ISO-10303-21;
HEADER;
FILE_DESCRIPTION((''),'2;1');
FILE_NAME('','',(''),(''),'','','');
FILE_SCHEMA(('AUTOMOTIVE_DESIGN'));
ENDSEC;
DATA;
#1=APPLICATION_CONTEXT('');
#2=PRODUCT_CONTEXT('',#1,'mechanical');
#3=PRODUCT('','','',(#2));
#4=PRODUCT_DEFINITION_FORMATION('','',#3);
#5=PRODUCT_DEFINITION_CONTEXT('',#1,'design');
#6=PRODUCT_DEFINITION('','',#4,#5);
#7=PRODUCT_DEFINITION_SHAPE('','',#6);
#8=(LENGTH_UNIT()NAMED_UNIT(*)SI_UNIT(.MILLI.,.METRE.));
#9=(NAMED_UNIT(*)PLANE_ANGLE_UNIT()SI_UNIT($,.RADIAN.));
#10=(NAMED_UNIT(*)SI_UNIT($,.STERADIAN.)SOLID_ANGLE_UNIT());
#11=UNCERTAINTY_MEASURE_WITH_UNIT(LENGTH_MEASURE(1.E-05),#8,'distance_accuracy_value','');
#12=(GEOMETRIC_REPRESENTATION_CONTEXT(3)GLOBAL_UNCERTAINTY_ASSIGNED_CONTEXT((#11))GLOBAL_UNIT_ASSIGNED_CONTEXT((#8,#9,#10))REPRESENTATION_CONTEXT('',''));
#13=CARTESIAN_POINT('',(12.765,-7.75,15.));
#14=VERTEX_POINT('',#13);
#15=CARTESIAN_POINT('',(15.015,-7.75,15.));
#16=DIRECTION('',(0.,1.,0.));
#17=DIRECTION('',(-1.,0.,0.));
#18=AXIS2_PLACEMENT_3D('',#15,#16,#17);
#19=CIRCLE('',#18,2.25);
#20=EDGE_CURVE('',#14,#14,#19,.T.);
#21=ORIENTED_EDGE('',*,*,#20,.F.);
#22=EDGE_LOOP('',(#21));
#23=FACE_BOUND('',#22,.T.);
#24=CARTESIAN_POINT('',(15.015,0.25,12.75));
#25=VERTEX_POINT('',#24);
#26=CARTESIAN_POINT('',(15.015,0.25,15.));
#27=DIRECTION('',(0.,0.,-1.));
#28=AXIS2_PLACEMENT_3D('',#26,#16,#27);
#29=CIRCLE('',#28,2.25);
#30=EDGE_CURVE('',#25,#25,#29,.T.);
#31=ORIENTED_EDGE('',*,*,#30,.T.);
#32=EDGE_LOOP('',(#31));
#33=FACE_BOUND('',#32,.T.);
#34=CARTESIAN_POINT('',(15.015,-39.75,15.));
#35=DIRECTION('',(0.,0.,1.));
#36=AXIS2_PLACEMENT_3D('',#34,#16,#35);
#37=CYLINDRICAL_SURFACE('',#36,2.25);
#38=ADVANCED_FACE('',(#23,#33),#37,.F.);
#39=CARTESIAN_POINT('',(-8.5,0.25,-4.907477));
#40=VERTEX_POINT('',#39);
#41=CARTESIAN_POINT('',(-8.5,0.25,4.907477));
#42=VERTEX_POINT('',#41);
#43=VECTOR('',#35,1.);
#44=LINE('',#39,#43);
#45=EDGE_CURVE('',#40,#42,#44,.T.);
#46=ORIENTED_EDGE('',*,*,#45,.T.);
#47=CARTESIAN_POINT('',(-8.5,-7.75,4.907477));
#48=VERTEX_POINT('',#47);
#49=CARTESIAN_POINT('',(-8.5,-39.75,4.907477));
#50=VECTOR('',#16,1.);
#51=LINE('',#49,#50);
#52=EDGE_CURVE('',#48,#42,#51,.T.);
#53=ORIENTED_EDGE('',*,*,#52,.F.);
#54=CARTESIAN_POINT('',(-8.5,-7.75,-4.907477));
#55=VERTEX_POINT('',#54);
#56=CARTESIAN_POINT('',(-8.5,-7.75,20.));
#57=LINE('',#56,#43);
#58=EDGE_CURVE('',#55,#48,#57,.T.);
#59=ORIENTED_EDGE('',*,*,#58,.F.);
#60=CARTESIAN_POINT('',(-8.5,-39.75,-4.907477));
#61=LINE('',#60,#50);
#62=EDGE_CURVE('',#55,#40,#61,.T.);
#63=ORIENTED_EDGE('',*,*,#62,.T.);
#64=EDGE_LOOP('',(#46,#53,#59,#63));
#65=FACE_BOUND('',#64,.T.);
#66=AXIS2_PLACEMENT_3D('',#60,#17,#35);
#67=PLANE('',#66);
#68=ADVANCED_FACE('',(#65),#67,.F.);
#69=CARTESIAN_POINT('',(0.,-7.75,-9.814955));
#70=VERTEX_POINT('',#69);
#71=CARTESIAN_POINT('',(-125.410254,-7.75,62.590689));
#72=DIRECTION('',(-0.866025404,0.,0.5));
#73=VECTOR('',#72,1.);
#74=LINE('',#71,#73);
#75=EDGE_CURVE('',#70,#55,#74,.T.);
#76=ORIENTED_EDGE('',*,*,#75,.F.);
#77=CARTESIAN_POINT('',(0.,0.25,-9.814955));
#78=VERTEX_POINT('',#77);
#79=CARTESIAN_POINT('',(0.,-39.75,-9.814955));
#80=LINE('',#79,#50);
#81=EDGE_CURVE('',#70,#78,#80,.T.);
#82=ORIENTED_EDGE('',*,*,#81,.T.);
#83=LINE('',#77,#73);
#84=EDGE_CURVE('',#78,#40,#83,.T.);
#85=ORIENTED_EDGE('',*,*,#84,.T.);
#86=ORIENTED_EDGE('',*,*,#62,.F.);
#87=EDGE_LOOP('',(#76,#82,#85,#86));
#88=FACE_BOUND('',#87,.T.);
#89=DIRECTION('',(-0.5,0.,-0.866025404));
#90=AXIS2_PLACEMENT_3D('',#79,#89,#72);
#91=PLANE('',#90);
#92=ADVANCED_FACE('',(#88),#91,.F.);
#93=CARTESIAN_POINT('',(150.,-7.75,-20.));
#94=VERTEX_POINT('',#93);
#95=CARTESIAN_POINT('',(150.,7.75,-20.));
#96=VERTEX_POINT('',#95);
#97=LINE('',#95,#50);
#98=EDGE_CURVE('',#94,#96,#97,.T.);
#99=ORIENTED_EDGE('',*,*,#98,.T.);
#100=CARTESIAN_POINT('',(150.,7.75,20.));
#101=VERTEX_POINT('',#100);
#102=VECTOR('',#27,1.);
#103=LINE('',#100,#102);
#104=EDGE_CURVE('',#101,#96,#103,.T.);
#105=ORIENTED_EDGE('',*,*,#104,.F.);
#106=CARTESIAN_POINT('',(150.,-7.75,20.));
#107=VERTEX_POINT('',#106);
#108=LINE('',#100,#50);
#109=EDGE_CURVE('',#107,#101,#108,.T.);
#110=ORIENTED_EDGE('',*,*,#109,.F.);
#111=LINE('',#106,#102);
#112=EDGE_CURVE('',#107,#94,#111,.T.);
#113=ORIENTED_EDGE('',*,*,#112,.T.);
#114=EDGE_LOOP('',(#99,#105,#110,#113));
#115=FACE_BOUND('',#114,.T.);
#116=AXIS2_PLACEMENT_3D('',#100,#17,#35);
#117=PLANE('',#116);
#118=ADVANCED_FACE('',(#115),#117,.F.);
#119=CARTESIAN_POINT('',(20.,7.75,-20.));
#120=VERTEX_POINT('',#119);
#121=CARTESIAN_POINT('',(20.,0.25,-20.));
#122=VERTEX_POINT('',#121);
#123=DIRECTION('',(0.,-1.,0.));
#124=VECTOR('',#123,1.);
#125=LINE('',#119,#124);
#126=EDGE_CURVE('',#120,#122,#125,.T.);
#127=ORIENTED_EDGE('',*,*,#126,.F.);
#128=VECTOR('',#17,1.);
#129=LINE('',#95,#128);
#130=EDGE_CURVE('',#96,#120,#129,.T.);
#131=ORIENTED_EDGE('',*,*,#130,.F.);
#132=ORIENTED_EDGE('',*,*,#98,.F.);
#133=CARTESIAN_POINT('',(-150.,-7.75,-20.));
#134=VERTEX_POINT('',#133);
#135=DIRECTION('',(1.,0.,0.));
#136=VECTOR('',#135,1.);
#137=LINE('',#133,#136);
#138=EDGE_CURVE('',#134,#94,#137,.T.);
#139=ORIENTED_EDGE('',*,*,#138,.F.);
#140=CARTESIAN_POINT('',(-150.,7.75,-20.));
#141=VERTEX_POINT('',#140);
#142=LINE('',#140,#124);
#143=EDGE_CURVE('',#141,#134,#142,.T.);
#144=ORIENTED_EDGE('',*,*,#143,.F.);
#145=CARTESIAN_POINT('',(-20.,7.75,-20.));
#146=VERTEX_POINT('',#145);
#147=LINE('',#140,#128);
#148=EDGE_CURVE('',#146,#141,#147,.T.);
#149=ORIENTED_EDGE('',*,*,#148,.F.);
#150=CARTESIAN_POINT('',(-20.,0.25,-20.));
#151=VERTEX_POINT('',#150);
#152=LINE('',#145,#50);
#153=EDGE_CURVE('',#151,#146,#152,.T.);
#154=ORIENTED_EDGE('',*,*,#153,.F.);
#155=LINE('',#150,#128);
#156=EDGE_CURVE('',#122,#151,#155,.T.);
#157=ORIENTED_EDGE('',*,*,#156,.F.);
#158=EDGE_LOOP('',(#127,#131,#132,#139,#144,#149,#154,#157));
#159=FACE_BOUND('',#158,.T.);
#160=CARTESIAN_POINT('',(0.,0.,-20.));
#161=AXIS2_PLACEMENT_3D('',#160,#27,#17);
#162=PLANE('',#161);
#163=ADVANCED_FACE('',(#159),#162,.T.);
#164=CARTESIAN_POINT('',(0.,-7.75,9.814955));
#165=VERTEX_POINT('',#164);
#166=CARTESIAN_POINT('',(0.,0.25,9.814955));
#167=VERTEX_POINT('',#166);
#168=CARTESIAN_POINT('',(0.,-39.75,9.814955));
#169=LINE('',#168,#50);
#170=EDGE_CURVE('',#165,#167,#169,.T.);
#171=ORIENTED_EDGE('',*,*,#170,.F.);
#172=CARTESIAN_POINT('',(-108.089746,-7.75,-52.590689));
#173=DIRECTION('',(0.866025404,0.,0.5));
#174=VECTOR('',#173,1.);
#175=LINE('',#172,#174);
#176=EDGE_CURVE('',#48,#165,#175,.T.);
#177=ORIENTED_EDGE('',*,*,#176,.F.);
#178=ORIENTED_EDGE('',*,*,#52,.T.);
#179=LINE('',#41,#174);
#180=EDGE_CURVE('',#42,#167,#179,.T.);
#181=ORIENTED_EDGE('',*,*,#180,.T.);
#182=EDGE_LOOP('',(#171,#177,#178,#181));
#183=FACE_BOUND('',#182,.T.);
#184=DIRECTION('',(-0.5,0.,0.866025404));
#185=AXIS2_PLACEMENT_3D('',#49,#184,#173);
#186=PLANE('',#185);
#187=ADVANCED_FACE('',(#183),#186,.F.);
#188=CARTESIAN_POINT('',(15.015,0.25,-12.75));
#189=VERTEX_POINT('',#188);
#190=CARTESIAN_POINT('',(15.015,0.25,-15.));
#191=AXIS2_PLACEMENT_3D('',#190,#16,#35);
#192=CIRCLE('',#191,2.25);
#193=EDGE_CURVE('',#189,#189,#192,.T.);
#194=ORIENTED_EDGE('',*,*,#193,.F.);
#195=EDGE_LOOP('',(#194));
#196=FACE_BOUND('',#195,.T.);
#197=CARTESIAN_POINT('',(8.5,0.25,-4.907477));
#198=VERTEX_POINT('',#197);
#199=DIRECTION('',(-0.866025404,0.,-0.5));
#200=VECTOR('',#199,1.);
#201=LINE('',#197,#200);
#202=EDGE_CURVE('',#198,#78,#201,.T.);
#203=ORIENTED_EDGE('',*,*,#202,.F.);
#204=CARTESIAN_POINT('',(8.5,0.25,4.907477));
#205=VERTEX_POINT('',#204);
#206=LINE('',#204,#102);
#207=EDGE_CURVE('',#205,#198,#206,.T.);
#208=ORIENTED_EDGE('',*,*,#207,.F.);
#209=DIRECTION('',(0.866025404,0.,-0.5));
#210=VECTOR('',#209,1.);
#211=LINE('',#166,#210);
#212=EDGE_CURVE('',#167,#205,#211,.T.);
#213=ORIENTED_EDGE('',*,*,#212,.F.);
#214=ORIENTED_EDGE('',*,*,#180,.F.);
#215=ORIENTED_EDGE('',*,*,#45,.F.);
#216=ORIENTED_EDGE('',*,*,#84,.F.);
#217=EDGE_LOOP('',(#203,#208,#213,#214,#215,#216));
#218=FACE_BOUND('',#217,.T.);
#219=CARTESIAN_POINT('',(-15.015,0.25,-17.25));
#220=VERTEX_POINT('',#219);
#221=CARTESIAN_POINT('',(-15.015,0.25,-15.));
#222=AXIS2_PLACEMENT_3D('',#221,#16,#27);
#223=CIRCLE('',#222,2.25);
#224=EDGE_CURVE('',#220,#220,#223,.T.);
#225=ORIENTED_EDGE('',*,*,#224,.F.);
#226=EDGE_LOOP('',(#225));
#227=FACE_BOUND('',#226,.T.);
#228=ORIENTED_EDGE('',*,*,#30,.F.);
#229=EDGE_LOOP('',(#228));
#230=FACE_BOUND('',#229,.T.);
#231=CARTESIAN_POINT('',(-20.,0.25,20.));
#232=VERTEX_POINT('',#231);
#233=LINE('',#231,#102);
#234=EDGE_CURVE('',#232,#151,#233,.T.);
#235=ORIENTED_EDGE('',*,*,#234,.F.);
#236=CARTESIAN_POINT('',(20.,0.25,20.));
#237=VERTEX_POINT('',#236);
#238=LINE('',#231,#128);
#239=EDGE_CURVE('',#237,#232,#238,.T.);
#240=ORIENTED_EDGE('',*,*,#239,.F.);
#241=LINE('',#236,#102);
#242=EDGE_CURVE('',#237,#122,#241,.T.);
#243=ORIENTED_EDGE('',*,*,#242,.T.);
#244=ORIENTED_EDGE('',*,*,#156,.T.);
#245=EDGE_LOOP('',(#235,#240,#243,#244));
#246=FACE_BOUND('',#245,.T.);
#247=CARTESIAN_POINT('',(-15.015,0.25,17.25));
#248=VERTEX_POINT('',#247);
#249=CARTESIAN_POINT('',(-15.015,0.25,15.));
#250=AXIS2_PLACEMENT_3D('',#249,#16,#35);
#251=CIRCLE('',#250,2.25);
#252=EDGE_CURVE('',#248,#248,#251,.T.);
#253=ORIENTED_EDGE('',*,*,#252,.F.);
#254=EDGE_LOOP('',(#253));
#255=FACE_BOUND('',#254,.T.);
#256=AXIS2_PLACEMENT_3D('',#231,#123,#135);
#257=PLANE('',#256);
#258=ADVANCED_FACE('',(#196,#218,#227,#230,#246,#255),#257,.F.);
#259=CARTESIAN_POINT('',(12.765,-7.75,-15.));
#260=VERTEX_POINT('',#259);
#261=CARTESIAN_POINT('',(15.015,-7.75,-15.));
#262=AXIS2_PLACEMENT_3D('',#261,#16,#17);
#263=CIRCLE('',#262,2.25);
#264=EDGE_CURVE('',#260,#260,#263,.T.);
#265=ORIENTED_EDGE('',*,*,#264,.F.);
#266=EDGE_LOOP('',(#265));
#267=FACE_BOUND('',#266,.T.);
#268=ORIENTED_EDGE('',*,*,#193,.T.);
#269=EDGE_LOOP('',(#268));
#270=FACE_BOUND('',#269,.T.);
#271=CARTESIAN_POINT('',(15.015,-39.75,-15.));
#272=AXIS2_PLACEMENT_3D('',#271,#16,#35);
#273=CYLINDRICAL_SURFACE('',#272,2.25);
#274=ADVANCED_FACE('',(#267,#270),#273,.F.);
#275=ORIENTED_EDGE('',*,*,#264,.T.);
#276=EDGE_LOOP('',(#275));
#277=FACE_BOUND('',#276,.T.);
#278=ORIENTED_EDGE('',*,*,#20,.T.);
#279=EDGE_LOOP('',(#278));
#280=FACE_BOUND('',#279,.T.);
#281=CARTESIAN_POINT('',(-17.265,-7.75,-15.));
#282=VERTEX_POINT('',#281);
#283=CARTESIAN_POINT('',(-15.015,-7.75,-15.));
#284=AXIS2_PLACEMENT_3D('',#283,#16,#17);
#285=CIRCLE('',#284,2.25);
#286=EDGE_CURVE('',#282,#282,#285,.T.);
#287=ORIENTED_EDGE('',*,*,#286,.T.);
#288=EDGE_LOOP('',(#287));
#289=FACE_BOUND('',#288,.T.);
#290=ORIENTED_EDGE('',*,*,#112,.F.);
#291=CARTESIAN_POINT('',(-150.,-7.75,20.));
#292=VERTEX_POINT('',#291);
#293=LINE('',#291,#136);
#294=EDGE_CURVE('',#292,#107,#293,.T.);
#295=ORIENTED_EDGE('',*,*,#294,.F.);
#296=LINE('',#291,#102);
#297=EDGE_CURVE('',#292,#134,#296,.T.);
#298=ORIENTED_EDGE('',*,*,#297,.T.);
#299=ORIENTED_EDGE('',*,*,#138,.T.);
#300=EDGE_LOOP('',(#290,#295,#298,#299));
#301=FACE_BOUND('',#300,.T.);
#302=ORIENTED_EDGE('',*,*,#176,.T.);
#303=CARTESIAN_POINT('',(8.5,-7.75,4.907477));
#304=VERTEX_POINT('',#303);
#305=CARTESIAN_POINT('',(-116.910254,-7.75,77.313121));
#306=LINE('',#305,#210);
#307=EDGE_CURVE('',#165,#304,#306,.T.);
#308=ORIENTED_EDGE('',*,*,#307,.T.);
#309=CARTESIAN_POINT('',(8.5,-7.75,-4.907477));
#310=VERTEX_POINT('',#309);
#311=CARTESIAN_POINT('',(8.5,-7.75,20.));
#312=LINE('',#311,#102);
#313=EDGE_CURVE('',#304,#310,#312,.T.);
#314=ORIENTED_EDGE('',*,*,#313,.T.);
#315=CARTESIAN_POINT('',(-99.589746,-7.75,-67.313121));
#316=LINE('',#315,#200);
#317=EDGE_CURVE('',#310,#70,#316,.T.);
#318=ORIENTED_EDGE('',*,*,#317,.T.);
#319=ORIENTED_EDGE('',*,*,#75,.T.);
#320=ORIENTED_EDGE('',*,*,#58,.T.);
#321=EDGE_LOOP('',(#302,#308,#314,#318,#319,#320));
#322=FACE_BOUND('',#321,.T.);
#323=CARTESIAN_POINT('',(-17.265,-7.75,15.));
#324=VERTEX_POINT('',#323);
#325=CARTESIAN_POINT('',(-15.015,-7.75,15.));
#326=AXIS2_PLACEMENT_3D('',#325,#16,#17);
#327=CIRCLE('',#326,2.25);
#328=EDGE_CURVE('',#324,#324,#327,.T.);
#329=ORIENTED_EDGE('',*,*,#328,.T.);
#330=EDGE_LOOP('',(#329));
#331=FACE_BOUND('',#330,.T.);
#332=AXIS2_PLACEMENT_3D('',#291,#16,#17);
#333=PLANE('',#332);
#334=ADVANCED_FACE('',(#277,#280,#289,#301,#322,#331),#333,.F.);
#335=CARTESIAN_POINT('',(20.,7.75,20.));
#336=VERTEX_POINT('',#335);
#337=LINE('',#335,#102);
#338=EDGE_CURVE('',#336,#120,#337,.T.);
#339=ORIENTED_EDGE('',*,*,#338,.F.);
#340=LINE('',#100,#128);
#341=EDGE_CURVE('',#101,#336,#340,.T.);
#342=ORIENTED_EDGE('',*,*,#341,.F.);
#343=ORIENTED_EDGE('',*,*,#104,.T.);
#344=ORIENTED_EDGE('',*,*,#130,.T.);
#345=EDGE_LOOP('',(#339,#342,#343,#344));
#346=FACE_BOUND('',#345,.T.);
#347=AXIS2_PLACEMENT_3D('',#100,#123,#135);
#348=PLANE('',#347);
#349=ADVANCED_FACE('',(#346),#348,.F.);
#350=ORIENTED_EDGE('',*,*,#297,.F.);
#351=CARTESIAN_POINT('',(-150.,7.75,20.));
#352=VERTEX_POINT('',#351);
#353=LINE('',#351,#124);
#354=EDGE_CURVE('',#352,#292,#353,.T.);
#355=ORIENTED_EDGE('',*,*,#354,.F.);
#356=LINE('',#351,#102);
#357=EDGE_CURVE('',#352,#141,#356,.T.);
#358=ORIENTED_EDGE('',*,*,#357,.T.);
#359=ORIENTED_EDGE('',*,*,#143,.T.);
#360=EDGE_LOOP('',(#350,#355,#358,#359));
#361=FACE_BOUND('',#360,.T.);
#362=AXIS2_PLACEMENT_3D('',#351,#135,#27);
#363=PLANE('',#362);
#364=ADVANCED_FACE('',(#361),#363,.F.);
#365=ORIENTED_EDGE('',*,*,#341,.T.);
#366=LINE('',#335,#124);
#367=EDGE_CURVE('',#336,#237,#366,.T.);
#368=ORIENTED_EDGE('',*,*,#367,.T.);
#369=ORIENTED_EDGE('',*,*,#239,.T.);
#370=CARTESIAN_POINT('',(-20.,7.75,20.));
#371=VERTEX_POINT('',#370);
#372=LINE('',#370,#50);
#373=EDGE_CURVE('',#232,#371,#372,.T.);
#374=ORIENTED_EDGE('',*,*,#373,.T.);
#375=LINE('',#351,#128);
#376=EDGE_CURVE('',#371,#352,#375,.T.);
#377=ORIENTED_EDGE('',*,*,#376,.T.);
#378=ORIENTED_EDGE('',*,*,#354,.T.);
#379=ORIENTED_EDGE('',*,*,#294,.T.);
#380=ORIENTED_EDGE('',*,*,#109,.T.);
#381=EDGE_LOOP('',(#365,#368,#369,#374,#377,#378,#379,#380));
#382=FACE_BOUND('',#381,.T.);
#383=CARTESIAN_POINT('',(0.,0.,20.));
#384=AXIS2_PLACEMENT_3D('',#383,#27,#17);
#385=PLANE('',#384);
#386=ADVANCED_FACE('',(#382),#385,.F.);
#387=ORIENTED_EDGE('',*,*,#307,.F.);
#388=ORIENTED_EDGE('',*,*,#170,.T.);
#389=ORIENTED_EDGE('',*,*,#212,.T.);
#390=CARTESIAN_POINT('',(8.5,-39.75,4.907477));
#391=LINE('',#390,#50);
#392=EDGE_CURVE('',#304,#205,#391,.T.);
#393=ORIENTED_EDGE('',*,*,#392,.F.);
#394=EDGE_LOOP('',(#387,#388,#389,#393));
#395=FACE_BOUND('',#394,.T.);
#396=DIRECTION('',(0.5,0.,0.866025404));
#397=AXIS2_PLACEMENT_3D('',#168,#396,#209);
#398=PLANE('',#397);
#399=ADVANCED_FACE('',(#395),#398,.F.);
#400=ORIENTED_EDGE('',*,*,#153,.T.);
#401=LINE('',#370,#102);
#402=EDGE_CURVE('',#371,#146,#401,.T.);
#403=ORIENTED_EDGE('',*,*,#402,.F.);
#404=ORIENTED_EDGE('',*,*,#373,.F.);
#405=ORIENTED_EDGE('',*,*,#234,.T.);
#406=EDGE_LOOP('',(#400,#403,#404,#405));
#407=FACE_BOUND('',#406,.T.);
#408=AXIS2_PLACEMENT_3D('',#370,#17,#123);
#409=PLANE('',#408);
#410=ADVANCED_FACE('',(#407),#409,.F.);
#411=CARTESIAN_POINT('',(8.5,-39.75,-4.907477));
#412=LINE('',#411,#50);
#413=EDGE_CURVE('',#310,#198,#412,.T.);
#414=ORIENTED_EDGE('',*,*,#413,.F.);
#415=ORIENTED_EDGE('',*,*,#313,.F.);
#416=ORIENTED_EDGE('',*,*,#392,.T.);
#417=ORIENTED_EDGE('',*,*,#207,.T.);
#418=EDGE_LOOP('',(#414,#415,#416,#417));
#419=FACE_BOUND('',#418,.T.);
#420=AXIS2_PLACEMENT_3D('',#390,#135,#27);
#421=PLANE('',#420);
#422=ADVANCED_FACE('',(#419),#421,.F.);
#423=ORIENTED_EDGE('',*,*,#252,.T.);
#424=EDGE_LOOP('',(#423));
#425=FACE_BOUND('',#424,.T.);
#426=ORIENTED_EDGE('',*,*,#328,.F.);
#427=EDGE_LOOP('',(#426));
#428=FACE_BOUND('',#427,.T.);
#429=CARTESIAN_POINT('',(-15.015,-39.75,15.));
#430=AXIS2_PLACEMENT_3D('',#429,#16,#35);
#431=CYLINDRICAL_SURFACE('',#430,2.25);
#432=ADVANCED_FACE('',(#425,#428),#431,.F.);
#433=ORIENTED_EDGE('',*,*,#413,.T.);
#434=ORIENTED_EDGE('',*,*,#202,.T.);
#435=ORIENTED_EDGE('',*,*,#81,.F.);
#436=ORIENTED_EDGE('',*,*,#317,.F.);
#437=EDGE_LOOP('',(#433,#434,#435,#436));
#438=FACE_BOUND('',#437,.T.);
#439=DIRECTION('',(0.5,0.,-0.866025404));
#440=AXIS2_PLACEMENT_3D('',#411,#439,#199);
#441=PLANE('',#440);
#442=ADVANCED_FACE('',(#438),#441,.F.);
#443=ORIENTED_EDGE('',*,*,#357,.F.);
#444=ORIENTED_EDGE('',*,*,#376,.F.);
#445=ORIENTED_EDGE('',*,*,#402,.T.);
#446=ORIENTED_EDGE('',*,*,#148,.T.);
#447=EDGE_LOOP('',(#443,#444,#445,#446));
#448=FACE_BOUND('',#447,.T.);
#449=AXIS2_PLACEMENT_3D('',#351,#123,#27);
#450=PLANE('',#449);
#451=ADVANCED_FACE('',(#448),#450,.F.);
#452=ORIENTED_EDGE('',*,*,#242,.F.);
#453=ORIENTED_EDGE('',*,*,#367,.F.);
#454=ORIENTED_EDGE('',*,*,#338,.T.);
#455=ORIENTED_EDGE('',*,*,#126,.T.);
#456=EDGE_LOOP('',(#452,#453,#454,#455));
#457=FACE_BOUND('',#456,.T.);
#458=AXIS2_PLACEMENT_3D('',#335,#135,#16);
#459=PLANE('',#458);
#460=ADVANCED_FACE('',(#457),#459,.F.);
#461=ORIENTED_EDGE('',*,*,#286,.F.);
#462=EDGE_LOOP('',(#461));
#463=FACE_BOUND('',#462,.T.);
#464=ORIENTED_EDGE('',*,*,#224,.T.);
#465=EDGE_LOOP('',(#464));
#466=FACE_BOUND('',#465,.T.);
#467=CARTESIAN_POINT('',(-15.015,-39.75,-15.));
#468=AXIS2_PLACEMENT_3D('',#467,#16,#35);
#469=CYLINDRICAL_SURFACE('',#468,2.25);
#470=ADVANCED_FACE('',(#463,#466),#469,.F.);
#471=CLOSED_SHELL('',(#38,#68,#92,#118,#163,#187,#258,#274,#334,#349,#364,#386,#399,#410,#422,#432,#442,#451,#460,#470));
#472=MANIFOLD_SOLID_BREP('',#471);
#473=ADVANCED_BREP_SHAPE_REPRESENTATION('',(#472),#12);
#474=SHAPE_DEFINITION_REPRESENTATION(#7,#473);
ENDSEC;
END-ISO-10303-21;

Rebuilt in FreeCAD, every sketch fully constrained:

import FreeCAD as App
import Part
import Sketcher
Q = App.Units.Quantity


def add_polygon(sketch, points):
    """Adds a closed chain of lines whose ends are joined by coincident constraints."""
    first, n = sketch.GeometryCount, len(points)
    for a, b in zip(points, points[1:] + points[:1]):
        sketch.addGeometry(Part.LineSegment(App.Vector(*a, 0), App.Vector(*b, 0)), False)
    for i in range(n):
        sketch.addConstraint(Sketcher.Constraint("Coincident", first + i, 2, first + (i + 1) % n, 1))

doc = App.newDocument("Part")
params = doc.addObject("Spreadsheet::Sheet", "Params")
for row, (alias, value) in enumerate([
    ("sketch1_width", "300 mm"),
    ("sketch1_width2", "130 mm"),
    ("sketch1_height", "15.5 mm"),
    ("sketch1_height2", "7.5 mm"),
    ("pad1_length", "40 mm"),
    ("sketch2_diameter", "4.5 mm"),
    ("pocket1_length", "40 mm"),
], start=1):
    params.set(f"A{row}", alias)
    params.set(f"B{row}", "=" + value)
    params.setAlias(f"B{row}", alias)

body = doc.addObject("PartDesign::Body", "Body")

sketch1 = body.newObject("Sketcher::SketchObject", "Sketch")
sketch1.AttachmentSupport = (doc.getObject("XY_Plane"), [""])
sketch1.MapMode = "FlatFace"
add_polygon(sketch1, [(-150, 7.75), (-150, -7.75), (150, -7.75), (150, 7.75), (20, 7.75), (20, 0.25), (-20, 0.25), (-20, 7.75)])
sketch1.addConstraint([
    Sketcher.Constraint("Vertical", 0),
    Sketcher.Constraint("Horizontal", 1),
    Sketcher.Constraint("Vertical", 2),
    Sketcher.Constraint("Horizontal", 3),
    Sketcher.Constraint("Vertical", 4),
    Sketcher.Constraint("Horizontal", 5),
    Sketcher.Constraint("Vertical", 6),
    Sketcher.Constraint("Horizontal", 7),
    Sketcher.Constraint("Symmetric", 0, 2, 2, 2, -1, 1),
    Sketcher.Constraint("Symmetric", 3, 2, 6, 2, -2),
    Sketcher.Constraint("DistanceX", 1, 1, 1, 2, Q("300 mm")),
    Sketcher.Constraint("DistanceX", 3, 2, 3, 1, Q("130 mm")),
    Sketcher.Constraint("DistanceY", 0, 2, 0, 1, Q("15.5 mm")),
    Sketcher.Constraint("DistanceY", 4, 2, 4, 1, Q("7.5 mm")),
])
sketch1.setExpression("Constraints[18]", "Params.sketch1_width")
sketch1.setExpression("Constraints[19]", "Params.sketch1_width2")
sketch1.setExpression("Constraints[20]", "Params.sketch1_height")
sketch1.setExpression("Constraints[21]", "Params.sketch1_height2")
pad1 = body.newObject("PartDesign::Pad", "Pad")
pad1.Profile = sketch1
pad1.setExpression("Length", "Params.pad1_length")
pad1.Midplane = True

sketch2 = body.newObject("Sketcher::SketchObject", "Sketch001")
sketch2.AttachmentSupport = (doc.getObject("XZ_Plane"), [""])
sketch2.MapMode = "FlatFace"
sketch2.AttachmentOffset = App.Placement(App.Vector(0, 0, -0.25), App.Rotation())
sketch2.addGeometry(Part.Circle(App.Vector(15.015, -15, 0), App.Vector(0, 0, 1), 2.25), False)
sketch2.addGeometry(Part.Circle(App.Vector(-15.015, -15, 0), App.Vector(0, 0, 1), 2.25), False)
sketch2.addGeometry(Part.Circle(App.Vector(15.015, 15, 0), App.Vector(0, 0, 1), 2.25), False)
sketch2.addGeometry(Part.Circle(App.Vector(-15.015, 15, 0), App.Vector(0, 0, 1), 2.25), False)
add_polygon(sketch2, [(0, 9.814955), (8.5, 4.907477), (8.5, -4.907477), (0, -9.814955), (-8.5, -4.907477), (-8.5, 4.907477)])
sketch2.addConstraint([
    Sketcher.Constraint("Vertical", 5),
    Sketcher.Constraint("Vertical", 8),
    Sketcher.Constraint("Equal", 0, 1),
    Sketcher.Constraint("Equal", 1, 2),
    Sketcher.Constraint("Equal", 2, 3),
    Sketcher.Constraint("Symmetric", 1, 3, 2, 3, -1, 1),
    Sketcher.Constraint("Symmetric", 0, 3, 3, 3, -1, 1),
    Sketcher.Constraint("Symmetric", 4, 2, 7, 2, -1, 1),
    Sketcher.Constraint("Symmetric", 6, 2, 9, 2, -1, 1),
    Sketcher.Constraint("Symmetric", 0, 3, 1, 3, -2),
    Sketcher.Constraint("PointOnObject", 6, 2, -2),
    Sketcher.Constraint("Parallel", 6, 9),
    Sketcher.Constraint("Horizontal", 5, 2, 7, 2),
    Sketcher.Constraint("Diameter", 0, Q("4.5 mm")),
    Sketcher.Constraint("Angle", 4, Q("-30 deg")),
    Sketcher.Constraint("DistanceY", 0, 3, -1, 1, Q("15 mm")),
    Sketcher.Constraint("DistanceX", 7, 2, 5, 2, Q("17 mm")),
    Sketcher.Constraint("DistanceX", 1, 3, 0, 3, Q("30.03 mm")),
    Sketcher.Constraint("DistanceY", 5, 2, 5, 1, Q("9.814955 mm")),
])
sketch2.setExpression("Constraints[19]", "Params.sketch2_diameter")
pocket1 = body.newObject("PartDesign::Pocket", "Pocket")
pocket1.Profile = sketch2
pocket1.setExpression("Length", "Params.pocket1_length")
pocket1.Reversed = True

doc.recompute()
